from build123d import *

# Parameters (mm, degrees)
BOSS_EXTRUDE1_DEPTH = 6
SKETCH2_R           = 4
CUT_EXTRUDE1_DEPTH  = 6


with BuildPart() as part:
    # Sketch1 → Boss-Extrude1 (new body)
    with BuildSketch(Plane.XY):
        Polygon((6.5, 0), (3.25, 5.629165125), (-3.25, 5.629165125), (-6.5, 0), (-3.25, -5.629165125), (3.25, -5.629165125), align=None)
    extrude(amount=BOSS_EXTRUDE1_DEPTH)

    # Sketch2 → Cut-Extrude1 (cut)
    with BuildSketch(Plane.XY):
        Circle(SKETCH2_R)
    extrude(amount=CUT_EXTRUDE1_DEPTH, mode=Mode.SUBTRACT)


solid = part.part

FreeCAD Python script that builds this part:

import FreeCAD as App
import Part
import Sketcher
from FreeCAD import Vector
Q = App.Units.Quantity

doc = App.newDocument("Part")
params = doc.addObject("Spreadsheet::Sheet", "Params")
for row, (alias, value) in enumerate([
    ("sketch1_width", "6.5 mm"),
    ("pad1_length", "6 mm"),
    ("sketch2_diameter", "8 mm"),
    ("pocket1_length", "6 mm"),
], start=1):
    params.set(f"A{row}", alias)
    params.set(f"B{row}", "=" + value)
    params.setAlias(f"B{row}", alias)

body = doc.addObject("PartDesign::Body", "Body")

sketch1 = body.newObject("Sketcher::SketchObject", "Sketch")
sketch1.AttachmentSupport = (doc.getObject("XY_Plane"), [""])
sketch1.MapMode = "FlatFace"
sketch1.addGeometry([
    Part.LineSegment(Vector(6, 0, 0), Vector(3, 6, 0)),
    Part.LineSegment(Vector(3, 6, 0), Vector(-3, 6, 0)),
    Part.LineSegment(Vector(-3, 6, 0), Vector(-6, 0, 0)),
    Part.LineSegment(Vector(-6, 0, 0), Vector(-3, -6, 0)),
    Part.LineSegment(Vector(-3, -6, 0), Vector(3, -6, 0)),
    Part.LineSegment(Vector(3, -6, 0), Vector(6, 0, 0)),
], False)
sketch1.addConstraint([
    Sketcher.Constraint("Coincident", 0, 2, 1, 1),
    Sketcher.Constraint("Coincident", 1, 2, 2, 1),
    Sketcher.Constraint("Coincident", 2, 2, 3, 1),
    Sketcher.Constraint("Coincident", 3, 2, 4, 1),
    Sketcher.Constraint("Coincident", 4, 2, 5, 1),
    Sketcher.Constraint("Coincident", 5, 2, 0, 1),
    Sketcher.Constraint("Horizontal", 1),
    Sketcher.Constraint("Horizontal", 4),
    Sketcher.Constraint("Symmetric", 0, 2, 3, 2, -1, 1),
    Sketcher.Constraint("Symmetric", 2, 2, 5, 2, -1, 1),
    Sketcher.Constraint("PointOnObject", 2, 2, -1),
    Sketcher.Constraint("Parallel", 2, 5),
    Sketcher.Constraint("Vertical", 1, 2, 3, 2),
    Sketcher.Constraint("Angle", 0, Q("120 deg")),
    Sketcher.Constraint("DistanceX", 1, 2, 1, 1, 6.5),
    Sketcher.Constraint("DistanceX", 2, 2, 5, 2, 13.0),
])
sketch1.setExpression("Constraints[14]", "Params.sketch1_width")
pad1 = body.newObject("PartDesign::Pad", "Pad")
pad1.Profile = sketch1
pad1.setExpression("Length", "Params.pad1_length")

sketch2 = body.newObject("Sketcher::SketchObject", "Sketch001")
sketch2.AttachmentSupport = (doc.getObject("XY_Plane"), [""])
sketch2.MapMode = "FlatFace"
sketch2.addGeometry(Part.Circle(Vector(0, 0, 0), Vector(0, 0, 1), 4), False)
sketch2.addConstraint([
    Sketcher.Constraint("Coincident", 0, 3, -1, 1),
    Sketcher.Constraint("Diameter", 0, 8.0),
])
sketch2.setExpression("Constraints[1]", "Params.sketch2_diameter")
pocket1 = body.newObject("PartDesign::Pocket", "Pocket")
pocket1.Profile = sketch2
pocket1.setExpression("Length", "Params.pocket1_length")
pocket1.Reversed = True

doc.recompute()
